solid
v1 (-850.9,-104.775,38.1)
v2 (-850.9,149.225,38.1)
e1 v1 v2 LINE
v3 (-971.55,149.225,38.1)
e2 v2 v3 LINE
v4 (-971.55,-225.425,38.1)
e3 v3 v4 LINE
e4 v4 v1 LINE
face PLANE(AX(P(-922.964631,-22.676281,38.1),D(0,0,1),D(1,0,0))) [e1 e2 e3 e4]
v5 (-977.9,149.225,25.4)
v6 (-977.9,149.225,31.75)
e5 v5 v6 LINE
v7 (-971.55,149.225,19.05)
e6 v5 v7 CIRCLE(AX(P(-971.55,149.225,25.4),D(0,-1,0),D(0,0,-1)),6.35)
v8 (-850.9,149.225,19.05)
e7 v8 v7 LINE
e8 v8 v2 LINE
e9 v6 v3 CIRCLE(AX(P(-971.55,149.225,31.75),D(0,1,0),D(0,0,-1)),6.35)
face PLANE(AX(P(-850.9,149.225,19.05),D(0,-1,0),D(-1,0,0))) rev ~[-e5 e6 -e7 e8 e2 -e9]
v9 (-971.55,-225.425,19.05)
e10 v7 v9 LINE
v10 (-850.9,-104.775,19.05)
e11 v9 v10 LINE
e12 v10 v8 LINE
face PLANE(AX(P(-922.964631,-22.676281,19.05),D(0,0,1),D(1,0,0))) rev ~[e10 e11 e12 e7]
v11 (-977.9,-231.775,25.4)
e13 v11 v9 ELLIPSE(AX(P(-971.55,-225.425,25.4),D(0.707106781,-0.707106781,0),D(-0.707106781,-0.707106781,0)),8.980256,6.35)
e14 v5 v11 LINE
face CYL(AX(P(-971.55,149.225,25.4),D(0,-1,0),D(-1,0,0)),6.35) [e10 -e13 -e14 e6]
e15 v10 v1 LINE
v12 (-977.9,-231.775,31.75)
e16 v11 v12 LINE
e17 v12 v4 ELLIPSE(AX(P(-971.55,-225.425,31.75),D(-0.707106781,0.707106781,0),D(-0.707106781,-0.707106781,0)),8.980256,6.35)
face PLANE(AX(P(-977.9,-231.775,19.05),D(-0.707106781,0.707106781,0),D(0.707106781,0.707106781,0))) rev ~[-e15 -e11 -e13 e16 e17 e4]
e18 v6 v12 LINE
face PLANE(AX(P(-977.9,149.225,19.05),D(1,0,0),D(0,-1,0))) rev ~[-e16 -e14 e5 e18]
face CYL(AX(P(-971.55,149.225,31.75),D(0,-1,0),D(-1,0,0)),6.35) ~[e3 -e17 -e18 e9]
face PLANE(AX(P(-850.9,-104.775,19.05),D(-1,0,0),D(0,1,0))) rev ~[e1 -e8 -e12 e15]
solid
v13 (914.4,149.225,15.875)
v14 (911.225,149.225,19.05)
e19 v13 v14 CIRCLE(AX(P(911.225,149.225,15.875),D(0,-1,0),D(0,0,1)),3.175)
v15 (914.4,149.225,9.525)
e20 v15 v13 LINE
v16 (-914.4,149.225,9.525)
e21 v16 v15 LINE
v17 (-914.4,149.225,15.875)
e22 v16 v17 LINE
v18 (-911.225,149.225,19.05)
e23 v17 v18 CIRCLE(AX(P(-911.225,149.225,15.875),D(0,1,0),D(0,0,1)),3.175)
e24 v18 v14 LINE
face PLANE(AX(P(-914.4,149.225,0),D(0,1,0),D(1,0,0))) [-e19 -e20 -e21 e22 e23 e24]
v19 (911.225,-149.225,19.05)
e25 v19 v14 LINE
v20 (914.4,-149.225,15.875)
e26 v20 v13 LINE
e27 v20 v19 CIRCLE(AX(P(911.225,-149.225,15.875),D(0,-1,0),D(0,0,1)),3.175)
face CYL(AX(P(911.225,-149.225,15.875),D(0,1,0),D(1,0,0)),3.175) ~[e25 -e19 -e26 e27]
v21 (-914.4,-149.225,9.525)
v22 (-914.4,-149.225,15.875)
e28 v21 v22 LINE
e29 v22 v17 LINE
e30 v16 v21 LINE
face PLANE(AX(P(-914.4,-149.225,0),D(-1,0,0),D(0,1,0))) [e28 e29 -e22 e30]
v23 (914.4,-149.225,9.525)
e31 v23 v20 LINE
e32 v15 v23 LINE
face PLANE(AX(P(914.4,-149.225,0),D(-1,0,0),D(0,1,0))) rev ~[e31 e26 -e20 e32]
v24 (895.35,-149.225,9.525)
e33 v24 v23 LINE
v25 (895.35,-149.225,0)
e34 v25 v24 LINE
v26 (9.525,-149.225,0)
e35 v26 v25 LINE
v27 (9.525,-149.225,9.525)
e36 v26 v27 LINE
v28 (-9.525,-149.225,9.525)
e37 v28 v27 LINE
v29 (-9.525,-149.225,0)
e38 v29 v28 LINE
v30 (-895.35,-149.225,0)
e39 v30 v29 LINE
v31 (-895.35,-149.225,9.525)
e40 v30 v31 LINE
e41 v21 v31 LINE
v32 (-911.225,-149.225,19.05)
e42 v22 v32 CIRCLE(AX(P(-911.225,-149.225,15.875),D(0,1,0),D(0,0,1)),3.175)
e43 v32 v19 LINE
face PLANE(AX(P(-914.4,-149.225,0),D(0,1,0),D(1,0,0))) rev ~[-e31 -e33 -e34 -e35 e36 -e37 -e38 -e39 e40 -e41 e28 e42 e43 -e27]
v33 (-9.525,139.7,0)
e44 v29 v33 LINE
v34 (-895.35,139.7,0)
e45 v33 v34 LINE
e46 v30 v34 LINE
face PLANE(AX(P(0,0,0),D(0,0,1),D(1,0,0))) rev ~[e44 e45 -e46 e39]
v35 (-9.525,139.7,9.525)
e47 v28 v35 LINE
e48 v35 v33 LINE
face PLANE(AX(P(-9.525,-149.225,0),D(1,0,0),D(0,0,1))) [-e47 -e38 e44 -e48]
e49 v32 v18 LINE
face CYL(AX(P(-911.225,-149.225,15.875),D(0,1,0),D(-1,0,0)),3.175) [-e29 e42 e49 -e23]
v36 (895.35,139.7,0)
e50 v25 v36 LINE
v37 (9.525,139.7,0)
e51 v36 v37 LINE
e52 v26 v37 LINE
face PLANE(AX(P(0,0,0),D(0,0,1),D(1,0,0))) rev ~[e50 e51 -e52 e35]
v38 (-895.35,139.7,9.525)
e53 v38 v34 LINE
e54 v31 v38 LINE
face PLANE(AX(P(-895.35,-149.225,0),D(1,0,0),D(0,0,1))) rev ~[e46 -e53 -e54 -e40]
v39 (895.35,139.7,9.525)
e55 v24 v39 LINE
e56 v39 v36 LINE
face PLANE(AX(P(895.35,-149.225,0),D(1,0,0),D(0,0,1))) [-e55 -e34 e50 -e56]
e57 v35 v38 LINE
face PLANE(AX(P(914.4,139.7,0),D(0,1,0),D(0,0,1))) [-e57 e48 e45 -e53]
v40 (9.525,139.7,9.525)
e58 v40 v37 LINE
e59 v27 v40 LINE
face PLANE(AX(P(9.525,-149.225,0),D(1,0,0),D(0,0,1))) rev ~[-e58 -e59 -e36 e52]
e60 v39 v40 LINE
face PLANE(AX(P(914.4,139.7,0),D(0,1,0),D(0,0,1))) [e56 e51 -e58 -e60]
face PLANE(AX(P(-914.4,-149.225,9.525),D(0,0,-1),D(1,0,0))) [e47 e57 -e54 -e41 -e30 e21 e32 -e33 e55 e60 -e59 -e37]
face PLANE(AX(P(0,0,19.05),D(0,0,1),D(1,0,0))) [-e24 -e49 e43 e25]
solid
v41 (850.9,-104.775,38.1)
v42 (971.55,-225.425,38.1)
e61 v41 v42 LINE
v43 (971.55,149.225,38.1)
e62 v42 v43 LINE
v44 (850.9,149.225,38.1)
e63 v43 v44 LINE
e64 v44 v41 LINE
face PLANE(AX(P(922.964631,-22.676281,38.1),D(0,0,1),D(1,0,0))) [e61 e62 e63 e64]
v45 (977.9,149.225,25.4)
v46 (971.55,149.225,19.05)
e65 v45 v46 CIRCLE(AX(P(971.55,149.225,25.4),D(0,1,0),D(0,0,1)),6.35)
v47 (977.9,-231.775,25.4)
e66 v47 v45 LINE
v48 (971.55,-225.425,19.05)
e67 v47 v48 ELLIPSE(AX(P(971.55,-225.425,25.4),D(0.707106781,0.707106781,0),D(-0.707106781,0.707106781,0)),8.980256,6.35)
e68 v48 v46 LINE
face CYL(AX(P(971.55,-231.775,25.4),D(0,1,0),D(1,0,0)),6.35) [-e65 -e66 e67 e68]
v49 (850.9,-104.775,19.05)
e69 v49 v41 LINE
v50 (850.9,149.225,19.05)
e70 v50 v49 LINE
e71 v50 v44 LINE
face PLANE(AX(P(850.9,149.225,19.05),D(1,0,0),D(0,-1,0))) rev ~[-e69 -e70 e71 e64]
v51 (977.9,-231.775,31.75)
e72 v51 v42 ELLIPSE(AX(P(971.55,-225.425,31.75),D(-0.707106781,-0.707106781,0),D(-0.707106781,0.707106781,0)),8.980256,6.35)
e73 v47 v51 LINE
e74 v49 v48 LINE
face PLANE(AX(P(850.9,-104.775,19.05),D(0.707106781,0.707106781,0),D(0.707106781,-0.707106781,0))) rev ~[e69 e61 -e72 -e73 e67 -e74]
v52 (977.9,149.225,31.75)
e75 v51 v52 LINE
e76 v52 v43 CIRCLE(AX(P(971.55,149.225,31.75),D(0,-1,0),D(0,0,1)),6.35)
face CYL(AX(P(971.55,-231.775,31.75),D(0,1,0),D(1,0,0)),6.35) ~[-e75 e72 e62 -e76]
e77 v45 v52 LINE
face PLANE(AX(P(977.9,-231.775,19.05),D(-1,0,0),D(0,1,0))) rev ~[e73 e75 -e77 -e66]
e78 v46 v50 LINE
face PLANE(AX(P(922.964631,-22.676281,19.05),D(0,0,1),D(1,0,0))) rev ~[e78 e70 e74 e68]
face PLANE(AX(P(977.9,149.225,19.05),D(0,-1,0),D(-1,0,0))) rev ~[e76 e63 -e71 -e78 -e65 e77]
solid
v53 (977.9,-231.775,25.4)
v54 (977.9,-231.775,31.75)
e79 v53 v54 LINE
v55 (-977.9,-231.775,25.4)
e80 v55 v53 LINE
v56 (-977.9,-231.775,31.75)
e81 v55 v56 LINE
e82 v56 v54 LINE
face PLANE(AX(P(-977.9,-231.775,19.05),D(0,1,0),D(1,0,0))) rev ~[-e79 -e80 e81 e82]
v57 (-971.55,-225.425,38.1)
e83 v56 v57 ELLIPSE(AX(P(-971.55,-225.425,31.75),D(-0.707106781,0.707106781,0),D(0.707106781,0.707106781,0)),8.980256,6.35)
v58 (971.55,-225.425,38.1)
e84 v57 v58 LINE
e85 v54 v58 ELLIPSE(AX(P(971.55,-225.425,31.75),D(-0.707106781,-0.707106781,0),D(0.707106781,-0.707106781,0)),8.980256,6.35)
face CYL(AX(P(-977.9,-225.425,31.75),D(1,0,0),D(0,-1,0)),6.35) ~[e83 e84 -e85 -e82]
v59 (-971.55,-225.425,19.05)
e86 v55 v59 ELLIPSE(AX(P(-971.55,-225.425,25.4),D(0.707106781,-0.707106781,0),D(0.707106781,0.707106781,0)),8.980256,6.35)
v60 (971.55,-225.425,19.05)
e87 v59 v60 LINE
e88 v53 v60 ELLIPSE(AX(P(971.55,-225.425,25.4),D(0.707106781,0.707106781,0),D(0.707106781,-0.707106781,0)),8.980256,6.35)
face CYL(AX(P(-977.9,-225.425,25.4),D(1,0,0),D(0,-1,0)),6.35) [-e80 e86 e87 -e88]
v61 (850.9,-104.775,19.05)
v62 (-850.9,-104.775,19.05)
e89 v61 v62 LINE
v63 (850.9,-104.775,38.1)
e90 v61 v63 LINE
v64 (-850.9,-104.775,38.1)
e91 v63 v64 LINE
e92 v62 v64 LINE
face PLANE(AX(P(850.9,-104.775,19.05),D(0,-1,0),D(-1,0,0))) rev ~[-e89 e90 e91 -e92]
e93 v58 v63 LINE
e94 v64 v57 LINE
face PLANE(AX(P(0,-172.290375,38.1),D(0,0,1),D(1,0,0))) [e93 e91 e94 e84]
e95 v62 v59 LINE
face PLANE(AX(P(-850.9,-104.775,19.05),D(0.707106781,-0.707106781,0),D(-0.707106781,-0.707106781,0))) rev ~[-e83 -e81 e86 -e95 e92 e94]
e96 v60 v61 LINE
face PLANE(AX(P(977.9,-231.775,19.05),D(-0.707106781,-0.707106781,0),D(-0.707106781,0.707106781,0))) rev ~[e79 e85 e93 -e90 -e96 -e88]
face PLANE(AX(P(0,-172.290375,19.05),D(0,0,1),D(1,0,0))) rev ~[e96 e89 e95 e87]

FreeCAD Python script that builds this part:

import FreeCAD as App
import Part
import Sketcher
Q = App.Units.Quantity


def edges_at(feature, points):
    """Names of the edges that pass closest to the given points."""
    edges = feature.Shape.Edges
    near = lambda p: min(range(len(edges)), key=lambda i: edges[i].distToShape(Part.Vertex(*p))[0])
    return sorted({f"Edge{near(p) + 1}" for p in points})

doc = App.newDocument("Part")
body = doc.addObject("PartDesign::Body", "Body")

# Sketch on XY plane
sketch1 = body.newObject("Sketcher::SketchObject", "Sketch")
sketch1.AttachmentSupport = (doc.getObject("XY_Plane"), [""])
sketch1.MapMode = "FlatFace"
sketch1.addGeometry(Part.LineSegment(App.Vector(-914, 149, 0), App.Vector(-914, -149, 0)), False)
sketch1.addGeometry(Part.LineSegment(App.Vector(-914, -149, 0), App.Vector(914, -149, 0)), False)
sketch1.addGeometry(Part.LineSegment(App.Vector(914, -149, 0), App.Vector(914, 149, 0)), False)
sketch1.addGeometry(Part.LineSegment(App.Vector(914, 149, 0), App.Vector(-914, 149, 0)), False)
sketch1.addConstraint(Sketcher.Constraint("Coincident", 0, 2, 1, 1))
sketch1.addConstraint(Sketcher.Constraint("Coincident", 1, 2, 2, 1))
sketch1.addConstraint(Sketcher.Constraint("Coincident", 2, 2, 3, 1))
sketch1.addConstraint(Sketcher.Constraint("Coincident", 3, 2, 0, 1))
sketch1.addConstraint(Sketcher.Constraint("Vertical", 0))
sketch1.addConstraint(Sketcher.Constraint("Horizontal", 1))
sketch1.addConstraint(Sketcher.Constraint("Vertical", 2))
sketch1.addConstraint(Sketcher.Constraint("Horizontal", 3))
sketch1.addConstraint(Sketcher.Constraint("Symmetric", 0, 2, 2, 2, -1, 1))
sketch1.addConstraint(Sketcher.Constraint("DistanceX", 1, 1, 1, 2, Q("72 in")))
sketch1.addConstraint(Sketcher.Constraint("DistanceY", 0, 2, 0, 1, Q("11.75 in")))
pad1 = body.newObject("PartDesign::Pad", "Pad")
pad1.Profile = sketch1
pad1.Length = Q("0.75 in")

# Sketch on YZ plane
sketch2 = body.newObject("Sketcher::SketchObject", "Sketch001")
sketch2.AttachmentSupport = (doc.getObject("YZ_Plane"), [""])
sketch2.MapMode = "FlatFace"
sketch2.AttachmentOffset = App.Placement(App.Vector(0, 0, 36 * 25.4), App.Rotation())
sketch2.addGeometry(Part.LineSegment(App.Vector(140, 10, 0), App.Vector(140, 0, 0)), False)
sketch2.addGeometry(Part.LineSegment(App.Vector(140, 0, 0), App.Vector(149, 0, 0)), False)
sketch2.addGeometry(Part.LineSegment(App.Vector(149, 0, 0), App.Vector(149, 10, 0)), False)
sketch2.addGeometry(Part.LineSegment(App.Vector(149, 10, 0), App.Vector(140, 10, 0)), False)
sketch2.addConstraint(Sketcher.Constraint("Coincident", 0, 2, 1, 1))
sketch2.addConstraint(Sketcher.Constraint("Coincident", 1, 2, 2, 1))
sketch2.addConstraint(Sketcher.Constraint("Coincident", 2, 2, 3, 1))
sketch2.addConstraint(Sketcher.Constraint("Coincident", 3, 2, 0, 1))
sketch2.addConstraint(Sketcher.Constraint("Vertical", 0))
sketch2.addConstraint(Sketcher.Constraint("Horizontal", 1))
sketch2.addConstraint(Sketcher.Constraint("Vertical", 2))
sketch2.addConstraint(Sketcher.Constraint("Horizontal", 3))
sketch2.addConstraint(Sketcher.Constraint("PointOnObject", 0, 2, -1))
sketch2.addConstraint(Sketcher.Constraint("Equal", 3, 0))
sketch2.addConstraint(Sketcher.Constraint("DistanceX", -1, 1, 0, 2, Q("5.5 in")))
sketch2.addConstraint(Sketcher.Constraint("DistanceX", 1, 1, 1, 2, Q("0.375 in")))
pocket1 = body.newObject("PartDesign::Pocket", "Pocket")
pocket1.Profile = sketch2
pocket1.Type = "ThroughAll"

# Sketch on XZ plane
sketch3 = body.newObject("Sketcher::SketchObject", "Sketch002")
sketch3.AttachmentSupport = (doc.getObject("XZ_Plane"), [""])
sketch3.MapMode = "FlatFace"
sketch3.AttachmentOffset = App.Placement(App.Vector(0, 0, 5.875 * 25.4), App.Rotation())
sketch3.addGeometry(Part.LineSegment(App.Vector(-914, 10, 0), App.Vector(-914, 0, 0)), False)
sketch3.addGeometry(Part.LineSegment(App.Vector(-914, 0, 0), App.Vector(-895, 0, 0)), False)
sketch3.addGeometry(Part.LineSegment(App.Vector(-895, 0, 0), App.Vector(-895, 10, 0)), False)
sketch3.addGeometry(Part.LineSegment(App.Vector(-895, 10, 0), App.Vector(-914, 10, 0)), False)
sketch3.addGeometry(Part.LineSegment(App.Vector(895, 10, 0), App.Vector(895, 0, 0)), False)
sketch3.addGeometry(Part.LineSegment(App.Vector(895, 0, 0), App.Vector(914, 0, 0)), False)
sketch3.addGeometry(Part.LineSegment(App.Vector(914, 0, 0), App.Vector(914, 10, 0)), False)
sketch3.addGeometry(Part.LineSegment(App.Vector(914, 10, 0), App.Vector(895, 10, 0)), False)
sketch3.addGeometry(Part.LineSegment(App.Vector(-10, 10, 0), App.Vector(-10, 0, 0)), False)
sketch3.addGeometry(Part.LineSegment(App.Vector(-10, 0, 0), App.Vector(10, 0, 0)), False)
sketch3.addGeometry(Part.LineSegment(App.Vector(10, 0, 0), App.Vector(10, 10, 0)), False)
sketch3.addGeometry(Part.LineSegment(App.Vector(10, 10, 0), App.Vector(-10, 10, 0)), False)
sketch3.addConstraint(Sketcher.Constraint("Coincident", 0, 2, 1, 1))
sketch3.addConstraint(Sketcher.Constraint("Coincident", 1, 2, 2, 1))
sketch3.addConstraint(Sketcher.Constraint("Coincident", 2, 2, 3, 1))
sketch3.addConstraint(Sketcher.Constraint("Coincident", 3, 2, 0, 1))
sketch3.addConstraint(Sketcher.Constraint("Coincident", 4, 2, 5, 1))
sketch3.addConstraint(Sketcher.Constraint("Coincident", 5, 2, 6, 1))
sketch3.addConstraint(Sketcher.Constraint("Coincident", 6, 2, 7, 1))
sketch3.addConstraint(Sketcher.Constraint("Coincident", 7, 2, 4, 1))
sketch3.addConstraint(Sketcher.Constraint("Coincident", 8, 2, 9, 1))
sketch3.addConstraint(Sketcher.Constraint("Coincident", 9, 2, 10, 1))
sketch3.addConstraint(Sketcher.Constraint("Coincident", 10, 2, 11, 1))
sketch3.addConstraint(Sketcher.Constraint("Coincident", 11, 2, 8, 1))
sketch3.addConstraint(Sketcher.Constraint("Vertical", 0))
sketch3.addConstraint(Sketcher.Constraint("Horizontal", 1))
sketch3.addConstraint(Sketcher.Constraint("Vertical", 2))
sketch3.addConstraint(Sketcher.Constraint("Horizontal", 3))
sketch3.addConstraint(Sketcher.Constraint("Vertical", 4))
sketch3.addConstraint(Sketcher.Constraint("Horizontal", 5))
sketch3.addConstraint(Sketcher.Constraint("Vertical", 6))
sketch3.addConstraint(Sketcher.Constraint("Horizontal", 7))
sketch3.addConstraint(Sketcher.Constraint("Vertical", 8))
sketch3.addConstraint(Sketcher.Constraint("Horizontal", 9))
sketch3.addConstraint(Sketcher.Constraint("Vertical", 10))
sketch3.addConstraint(Sketcher.Constraint("Horizontal", 11))
sketch3.addConstraint(Sketcher.Constraint("Symmetric", 1, 2, 4, 2, -1, 1))
sketch3.addConstraint(Sketcher.Constraint("Symmetric", 8, 2, 9, 2, -1, 1))
sketch3.addConstraint(Sketcher.Constraint("Symmetric", 0, 2, 5, 2, -2))
sketch3.addConstraint(Sketcher.Constraint("Horizontal", 3, 2, 6, 2))
sketch3.addConstraint(Sketcher.Constraint("Horizontal", 7, 2, 10, 2))
sketch3.addConstraint(Sketcher.Constraint("Equal", 7, 9))
sketch3.addConstraint(Sketcher.Constraint("DistanceX", 0, 2, -1, 1, Q("36 in")))
sketch3.addConstraint(Sketcher.Constraint("DistanceX", 1, 1, 1, 2, Q("0.75 in")))
sketch3.addConstraint(Sketcher.Constraint("DistanceY", 0, 2, 0, 1, Q("0.375 in")))
pocket2 = body.newObject("PartDesign::Pocket", "Pocket001")
pocket2.Profile = sketch3
pocket2.Type = "ThroughAll"
doc.recompute()

fillet = body.newObject("PartDesign::Fillet", "Fillet")
fillet.Base = (pocket2, edges_at(pocket2, [(-914.4, 0, 19.05), (914.4, 0, 19.05)]))
fillet.Radius = Q("0.125 in")
body2 = doc.addObject("PartDesign::Body", "Body001")

# Sketch on XY plane
sketch4 = body2.newObject("Sketcher::SketchObject", "Sketch003")
sketch4.AttachmentSupport = (doc.getObject("XY_Plane001"), [""])
sketch4.MapMode = "FlatFace"
sketch4.AttachmentOffset = App.Placement(App.Vector(0, 0, 0.75 * 25.4), App.Rotation())
sketch4.addGeometry(Part.LineSegment(App.Vector(851, -105, 0), App.Vector(-851, -105, 0)), False)
sketch4.addGeometry(Part.LineSegment(App.Vector(-851, -105, 0), App.Vector(-978, -232, 0)), False)
sketch4.addGeometry(Part.LineSegment(App.Vector(-978, -232, 0), App.Vector(978, -232, 0)), False)
sketch4.addGeometry(Part.LineSegment(App.Vector(978, -232, 0), App.Vector(851, -105, 0)), False)
sketch4.addConstraint(Sketcher.Constraint("Coincident", 0, 2, 1, 1))
sketch4.addConstraint(Sketcher.Constraint("Coincident", 1, 2, 2, 1))
sketch4.addConstraint(Sketcher.Constraint("Coincident", 2, 2, 3, 1))
sketch4.addConstraint(Sketcher.Constraint("Coincident", 3, 2, 0, 1))
sketch4.addConstraint(Sketcher.Constraint("Horizontal", 0))
sketch4.addConstraint(Sketcher.Constraint("Horizontal", 2))
sketch4.addConstraint(Sketcher.Constraint("Perpendicular", 1, 3))
sketch4.addConstraint(Sketcher.Constraint("Equal", 1, 3))
sketch4.addConstraint(Sketcher.Constraint("DistanceX", 0, 2, 0, 1, Q("67 in")))
sketch4.addConstraint(Sketcher.Constraint("DistanceX", 2, 1, 2, 2, Q("77 in")))
sketch4.addConstraint(Sketcher.Constraint("DistanceX", 0, 2, -1, 1, Q("33.5 in")))
sketch4.addConstraint(Sketcher.Constraint("DistanceY", 0, 2, -1, 1, Q("4.125 in")))
pad2 = body2.newObject("PartDesign::Pad", "Pad001")
pad2.Profile = sketch4
pad2.Length = Q("0.75 in")
doc.recompute()

fillet2 = body2.newObject("PartDesign::Fillet", "Fillet001")
fillet2.Base = (pad2, edges_at(pad2, [(0, -231.775, 38.1), (0, -231.775, 19.05)]))
fillet2.Radius = Q("0.25 in")
body3 = doc.addObject("PartDesign::Body", "Body002")

# Sketch on XY plane
sketch5 = body3.newObject("Sketcher::SketchObject", "Sketch004")
sketch5.AttachmentSupport = (doc.getObject("XY_Plane002"), [""])
sketch5.MapMode = "FlatFace"
sketch5.AttachmentOffset = App.Placement(App.Vector(0, 0, 0.75 * 25.4), App.Rotation())
sketch5.addGeometry(Part.LineSegment(App.Vector(-851, 149, 0), App.Vector(-978, 149, 0)), False)
sketch5.addGeometry(Part.LineSegment(App.Vector(-978, 149, 0), App.Vector(-978, -232, 0)), False)
sketch5.addGeometry(Part.LineSegment(App.Vector(-978, -232, 0), App.Vector(-851, -105, 0)), False)
sketch5.addGeometry(Part.LineSegment(App.Vector(-851, -105, 0), App.Vector(-851, 149, 0)), False)
sketch5.addConstraint(Sketcher.Constraint("Coincident", 0, 2, 1, 1))
sketch5.addConstraint(Sketcher.Constraint("Coincident", 1, 2, 2, 1))
sketch5.addConstraint(Sketcher.Constraint("Coincident", 2, 2, 3, 1))
sketch5.addConstraint(Sketcher.Constraint("Coincident", 3, 2, 0, 1))
sketch5.addConstraint(Sketcher.Constraint("Horizontal", 0))
sketch5.addConstraint(Sketcher.Constraint("Vertical", 1))
sketch5.addConstraint(Sketcher.Constraint("Vertical", 3))
sketch5.addConstraint(Sketcher.Constraint("DistanceX", 0, 2, 0, 1, Q("5 in")))
sketch5.addConstraint(Sketcher.Constraint("DistanceY", 1, 2, 1, 1, Q("15 in")))
sketch5.addConstraint(Sketcher.Constraint("DistanceY", 3, 1, 3, 2, Q("10 in")))
sketch5.addConstraint(Sketcher.Constraint("DistanceX", 0, 2, -1, 1, Q("38.5 in")))
sketch5.addConstraint(Sketcher.Constraint("DistanceY", -1, 1, 0, 2, Q("5.875 in")))
pad3 = body3.newObject("PartDesign::Pad", "Pad002")
pad3.Profile = sketch5
pad3.Length = Q("0.75 in")
doc.recompute()

fillet3 = body3.newObject("PartDesign::Fillet", "Fillet002")
fillet3.Base = (pad3, edges_at(pad3, [(-977.9, -41.275, 38.1), (-977.9, -41.275, 19.05)]))
fillet3.Radius = Q("0.25 in")
body4 = doc.addObject("PartDesign::Body", "Body003")

# Sketch on XY plane
sketch6 = body4.newObject("Sketcher::SketchObject", "Sketch005")
sketch6.AttachmentSupport = (doc.getObject("XY_Plane003"), [""])
sketch6.MapMode = "FlatFace"
sketch6.AttachmentOffset = App.Placement(App.Vector(0, 0, 0.75 * 25.4), App.Rotation())
sketch6.addGeometry(Part.LineSegment(App.Vector(978, 149, 0), App.Vector(851, 149, 0)), False)
sketch6.addGeometry(Part.LineSegment(App.Vector(851, 149, 0), App.Vector(851, -105, 0)), False)
sketch6.addGeometry(Part.LineSegment(App.Vector(851, -105, 0), App.Vector(978, -232, 0)), False)
sketch6.addGeometry(Part.LineSegment(App.Vector(978, -232, 0), App.Vector(978, 149, 0)), False)
sketch6.addConstraint(Sketcher.Constraint("Coincident", 0, 2, 1, 1))
sketch6.addConstraint(Sketcher.Constraint("Coincident", 1, 2, 2, 1))
sketch6.addConstraint(Sketcher.Constraint("Coincident", 2, 2, 3, 1))
sketch6.addConstraint(Sketcher.Constraint("Coincident", 3, 2, 0, 1))
sketch6.addConstraint(Sketcher.Constraint("Horizontal", 0))
sketch6.addConstraint(Sketcher.Constraint("Vertical", 1))
sketch6.addConstraint(Sketcher.Constraint("Vertical", 3))
sketch6.addConstraint(Sketcher.Constraint("DistanceX", 0, 2, 0, 1, Q("5 in")))
sketch6.addConstraint(Sketcher.Constraint("DistanceY", 1, 2, 1, 1, Q("10 in")))
sketch6.addConstraint(Sketcher.Constraint("DistanceY", 3, 1, 3, 2, Q("15 in")))
sketch6.addConstraint(Sketcher.Constraint("DistanceX", -1, 1, 0, 2, Q("33.5 in")))
sketch6.addConstraint(Sketcher.Constraint("DistanceY", -1, 1, 0, 2, Q("5.875 in")))
pad4 = body4.newObject("PartDesign::Pad", "Pad003")
pad4.Profile = sketch6
pad4.Length = Q("0.75 in")
doc.recompute()

fillet4 = body4.newObject("PartDesign::Fillet", "Fillet003")
fillet4.Base = (pad4, edges_at(pad4, [(977.9, -41.275, 19.05), (977.9, -41.275, 38.1)]))
fillet4.Radius = Q("0.25 in")

doc.recompute()
